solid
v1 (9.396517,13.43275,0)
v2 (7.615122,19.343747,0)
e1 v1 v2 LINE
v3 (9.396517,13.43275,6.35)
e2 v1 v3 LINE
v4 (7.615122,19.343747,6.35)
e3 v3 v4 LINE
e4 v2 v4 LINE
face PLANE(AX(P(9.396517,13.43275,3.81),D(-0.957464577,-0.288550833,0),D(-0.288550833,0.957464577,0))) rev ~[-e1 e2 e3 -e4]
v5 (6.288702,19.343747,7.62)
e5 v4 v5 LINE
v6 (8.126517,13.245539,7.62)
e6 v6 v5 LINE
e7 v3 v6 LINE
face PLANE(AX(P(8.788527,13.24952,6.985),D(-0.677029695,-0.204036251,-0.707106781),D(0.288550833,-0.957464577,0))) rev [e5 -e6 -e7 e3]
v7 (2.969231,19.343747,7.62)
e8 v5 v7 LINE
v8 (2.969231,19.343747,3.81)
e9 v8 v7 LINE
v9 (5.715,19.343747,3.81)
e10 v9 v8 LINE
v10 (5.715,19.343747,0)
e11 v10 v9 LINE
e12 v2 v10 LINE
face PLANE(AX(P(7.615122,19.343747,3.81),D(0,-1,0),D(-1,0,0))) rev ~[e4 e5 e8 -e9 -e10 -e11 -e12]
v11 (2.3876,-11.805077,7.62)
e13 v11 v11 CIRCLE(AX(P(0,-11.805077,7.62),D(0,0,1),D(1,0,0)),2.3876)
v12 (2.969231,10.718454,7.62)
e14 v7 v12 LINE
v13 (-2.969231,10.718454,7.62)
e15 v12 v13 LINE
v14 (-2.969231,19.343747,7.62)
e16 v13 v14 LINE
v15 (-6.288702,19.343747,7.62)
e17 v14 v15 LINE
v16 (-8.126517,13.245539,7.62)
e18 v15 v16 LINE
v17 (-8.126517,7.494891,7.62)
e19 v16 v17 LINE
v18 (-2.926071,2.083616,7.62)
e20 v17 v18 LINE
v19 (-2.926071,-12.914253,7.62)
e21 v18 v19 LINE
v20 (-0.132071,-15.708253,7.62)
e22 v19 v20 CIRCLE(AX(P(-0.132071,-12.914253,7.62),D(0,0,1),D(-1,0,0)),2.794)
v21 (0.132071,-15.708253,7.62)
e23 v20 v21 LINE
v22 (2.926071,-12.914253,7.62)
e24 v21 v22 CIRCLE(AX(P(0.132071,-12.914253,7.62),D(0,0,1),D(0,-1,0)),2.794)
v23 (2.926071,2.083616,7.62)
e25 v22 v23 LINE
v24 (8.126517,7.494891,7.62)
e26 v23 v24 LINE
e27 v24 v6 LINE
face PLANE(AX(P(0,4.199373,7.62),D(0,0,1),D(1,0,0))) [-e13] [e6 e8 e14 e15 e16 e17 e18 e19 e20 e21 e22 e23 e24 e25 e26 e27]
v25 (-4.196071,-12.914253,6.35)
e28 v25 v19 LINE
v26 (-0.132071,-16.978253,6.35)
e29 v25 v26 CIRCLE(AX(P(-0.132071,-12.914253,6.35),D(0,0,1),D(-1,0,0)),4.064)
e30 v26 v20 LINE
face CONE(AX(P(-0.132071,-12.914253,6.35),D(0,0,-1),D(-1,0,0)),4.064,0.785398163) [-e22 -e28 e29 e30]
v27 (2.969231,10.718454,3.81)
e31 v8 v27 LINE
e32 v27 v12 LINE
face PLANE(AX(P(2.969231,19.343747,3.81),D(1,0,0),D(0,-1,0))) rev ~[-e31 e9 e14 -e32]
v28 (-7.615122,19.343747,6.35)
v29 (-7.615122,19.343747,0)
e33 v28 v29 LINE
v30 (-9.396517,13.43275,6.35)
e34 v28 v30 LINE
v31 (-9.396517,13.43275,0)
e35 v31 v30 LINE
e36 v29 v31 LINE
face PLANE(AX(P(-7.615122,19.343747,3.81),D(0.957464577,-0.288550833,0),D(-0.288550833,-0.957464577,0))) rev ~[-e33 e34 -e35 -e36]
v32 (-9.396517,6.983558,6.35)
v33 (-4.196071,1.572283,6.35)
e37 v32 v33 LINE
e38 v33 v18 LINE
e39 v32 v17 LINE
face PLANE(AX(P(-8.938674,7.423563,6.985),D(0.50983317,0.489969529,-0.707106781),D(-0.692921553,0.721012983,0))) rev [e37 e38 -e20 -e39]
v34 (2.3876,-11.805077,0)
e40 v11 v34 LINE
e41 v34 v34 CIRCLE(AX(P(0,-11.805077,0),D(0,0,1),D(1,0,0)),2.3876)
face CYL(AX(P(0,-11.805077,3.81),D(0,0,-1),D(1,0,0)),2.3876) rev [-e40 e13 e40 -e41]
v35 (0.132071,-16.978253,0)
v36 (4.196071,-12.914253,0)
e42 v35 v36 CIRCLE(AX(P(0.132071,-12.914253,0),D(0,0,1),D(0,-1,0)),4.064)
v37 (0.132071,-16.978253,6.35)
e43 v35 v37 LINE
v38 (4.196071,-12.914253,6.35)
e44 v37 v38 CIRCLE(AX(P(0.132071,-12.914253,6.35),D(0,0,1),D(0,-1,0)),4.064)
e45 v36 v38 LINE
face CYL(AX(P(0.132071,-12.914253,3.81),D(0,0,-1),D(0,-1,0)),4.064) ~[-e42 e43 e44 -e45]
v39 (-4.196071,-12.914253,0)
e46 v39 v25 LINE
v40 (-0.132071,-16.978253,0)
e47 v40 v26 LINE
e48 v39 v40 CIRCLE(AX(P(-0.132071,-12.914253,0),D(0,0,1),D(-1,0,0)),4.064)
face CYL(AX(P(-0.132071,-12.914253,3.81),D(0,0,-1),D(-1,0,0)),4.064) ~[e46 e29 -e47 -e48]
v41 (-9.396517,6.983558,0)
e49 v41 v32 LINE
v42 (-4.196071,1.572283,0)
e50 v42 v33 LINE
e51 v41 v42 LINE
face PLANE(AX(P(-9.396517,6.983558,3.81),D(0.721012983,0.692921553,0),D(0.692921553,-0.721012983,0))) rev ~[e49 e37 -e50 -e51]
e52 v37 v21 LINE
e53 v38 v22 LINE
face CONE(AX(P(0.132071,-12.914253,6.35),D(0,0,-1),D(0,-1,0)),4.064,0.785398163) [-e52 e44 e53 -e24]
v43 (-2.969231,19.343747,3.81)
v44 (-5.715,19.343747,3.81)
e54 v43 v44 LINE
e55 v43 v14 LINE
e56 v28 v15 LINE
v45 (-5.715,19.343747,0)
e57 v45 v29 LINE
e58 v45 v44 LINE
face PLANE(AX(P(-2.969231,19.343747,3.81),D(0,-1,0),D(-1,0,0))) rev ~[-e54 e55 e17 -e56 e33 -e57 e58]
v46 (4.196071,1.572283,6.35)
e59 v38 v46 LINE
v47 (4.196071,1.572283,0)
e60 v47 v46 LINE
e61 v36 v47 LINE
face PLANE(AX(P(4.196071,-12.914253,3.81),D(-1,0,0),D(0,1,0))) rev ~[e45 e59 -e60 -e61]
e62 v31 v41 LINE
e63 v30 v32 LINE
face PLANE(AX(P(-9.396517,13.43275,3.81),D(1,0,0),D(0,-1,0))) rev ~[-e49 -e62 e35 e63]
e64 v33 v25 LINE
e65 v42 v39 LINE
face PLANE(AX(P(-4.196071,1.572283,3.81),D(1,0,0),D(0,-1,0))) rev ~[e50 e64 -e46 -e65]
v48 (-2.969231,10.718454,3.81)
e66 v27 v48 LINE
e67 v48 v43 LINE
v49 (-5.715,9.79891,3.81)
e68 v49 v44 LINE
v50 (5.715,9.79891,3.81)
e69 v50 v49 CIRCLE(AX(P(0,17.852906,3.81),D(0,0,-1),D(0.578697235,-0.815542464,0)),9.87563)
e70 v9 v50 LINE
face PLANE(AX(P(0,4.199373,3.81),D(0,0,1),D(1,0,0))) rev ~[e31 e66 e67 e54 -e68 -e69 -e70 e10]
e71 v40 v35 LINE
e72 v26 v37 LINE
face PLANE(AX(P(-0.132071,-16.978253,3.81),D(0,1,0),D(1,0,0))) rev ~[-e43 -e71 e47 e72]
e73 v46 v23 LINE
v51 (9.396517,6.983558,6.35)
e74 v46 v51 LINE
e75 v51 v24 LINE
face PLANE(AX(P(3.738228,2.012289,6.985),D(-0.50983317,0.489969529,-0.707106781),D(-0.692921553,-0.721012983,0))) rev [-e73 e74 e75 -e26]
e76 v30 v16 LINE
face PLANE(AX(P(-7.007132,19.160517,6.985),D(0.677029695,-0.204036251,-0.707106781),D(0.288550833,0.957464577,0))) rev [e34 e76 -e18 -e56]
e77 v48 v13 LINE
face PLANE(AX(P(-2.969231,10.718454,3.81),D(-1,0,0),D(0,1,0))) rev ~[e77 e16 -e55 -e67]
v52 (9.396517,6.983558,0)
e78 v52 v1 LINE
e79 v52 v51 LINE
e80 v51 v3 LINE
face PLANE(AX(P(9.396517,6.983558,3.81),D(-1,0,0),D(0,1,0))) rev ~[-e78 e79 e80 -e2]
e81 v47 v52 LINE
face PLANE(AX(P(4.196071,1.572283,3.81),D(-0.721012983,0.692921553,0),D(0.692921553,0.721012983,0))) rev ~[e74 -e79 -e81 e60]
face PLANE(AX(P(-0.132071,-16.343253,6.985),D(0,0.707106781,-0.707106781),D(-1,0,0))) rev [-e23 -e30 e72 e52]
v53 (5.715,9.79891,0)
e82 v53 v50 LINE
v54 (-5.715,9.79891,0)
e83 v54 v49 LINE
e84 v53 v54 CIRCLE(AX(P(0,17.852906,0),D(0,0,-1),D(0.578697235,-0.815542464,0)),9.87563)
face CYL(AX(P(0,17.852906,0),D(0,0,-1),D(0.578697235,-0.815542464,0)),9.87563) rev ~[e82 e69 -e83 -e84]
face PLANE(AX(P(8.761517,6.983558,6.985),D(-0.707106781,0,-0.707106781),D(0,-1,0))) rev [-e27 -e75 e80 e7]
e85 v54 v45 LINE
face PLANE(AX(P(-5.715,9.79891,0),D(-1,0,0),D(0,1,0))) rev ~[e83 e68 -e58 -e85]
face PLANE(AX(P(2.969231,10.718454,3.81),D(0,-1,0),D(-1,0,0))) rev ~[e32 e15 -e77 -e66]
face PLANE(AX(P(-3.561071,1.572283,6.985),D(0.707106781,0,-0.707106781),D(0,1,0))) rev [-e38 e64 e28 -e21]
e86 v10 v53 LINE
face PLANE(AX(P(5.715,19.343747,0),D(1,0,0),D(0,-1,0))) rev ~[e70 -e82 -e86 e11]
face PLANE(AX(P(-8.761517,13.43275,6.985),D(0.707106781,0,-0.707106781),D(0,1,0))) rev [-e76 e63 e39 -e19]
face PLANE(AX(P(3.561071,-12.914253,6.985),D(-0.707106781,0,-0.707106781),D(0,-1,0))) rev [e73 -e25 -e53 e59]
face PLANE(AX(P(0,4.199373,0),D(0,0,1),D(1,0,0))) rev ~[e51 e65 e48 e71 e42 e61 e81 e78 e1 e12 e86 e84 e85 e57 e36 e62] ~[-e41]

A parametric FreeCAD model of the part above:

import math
import FreeCAD as App
import Part
import Sketcher
from FreeCAD import Vector
Q = App.Units.Quantity


def edges_at(feature, points):
    """Names of the edges that pass closest to the given points."""
    edges = feature.Shape.Edges
    near = lambda p: min(range(len(edges)), key=lambda i: edges[i].distToShape(Part.Vertex(*p))[0])
    return sorted({f"Edge{near(p) + 1}" for p in points})

doc = App.newDocument("Part")
body = doc.addObject("PartDesign::Body", "Body")

# Sketch on XY plane
sketch1 = body.newObject("Sketcher::SketchObject", "Sketch")
sketch1.AttachmentSupport = (doc.getObject("XY_Plane"), [""])
sketch1.MapMode = "FlatFace"
sketch1.addGeometry([
    Part.ArcOfCircle(Part.Circle(Vector(0, 17.85, 0), Vector(0, 0, 1), 9.88), math.radians(-125), math.radians(-55)),  # 0
    Part.LineSegment(Vector(-5.71, 9.8, 0), Vector(-5.71, 19.34, 0)),  # 1
    Part.LineSegment(Vector(-5.71, 19.34, 0), Vector(-7.62, 19.34, 0)),  # 2
    Part.LineSegment(Vector(-7.62, 19.34, 0), Vector(-9.4, 13.43, 0)),  # 3
    Part.LineSegment(Vector(-9.4, 13.43, 0), Vector(-9.4, 6.98, 0)),  # 4
    Part.LineSegment(Vector(-9.4, 6.98, 0), Vector(-4.2, 1.57, 0)),  # 5
    Part.LineSegment(Vector(-4.2, 1.57, 0), Vector(-4.2, -12.91, 0)),  # 6
    Part.ArcOfCircle(Part.Circle(Vector(-0.13, -12.91, 0), Vector(0, 0, 1), 4.06), math.radians(180), math.radians(270)),  # 7
    Part.LineSegment(Vector(-0.13, -16.98, 0), Vector(0.13, -16.98, 0)),  # 8
    Part.ArcOfCircle(Part.Circle(Vector(0.13, -12.91, 0), Vector(0, 0, 1), 4.06), math.radians(-90), math.radians(0)),  # 9
    Part.LineSegment(Vector(4.2, -12.91, 0), Vector(4.2, 1.57, 0)),  # 10
    Part.LineSegment(Vector(4.2, 1.57, 0), Vector(9.4, 6.98, 0)),  # 11
    Part.LineSegment(Vector(9.4, 6.98, 0), Vector(9.4, 13.43, 0)),  # 12
    Part.LineSegment(Vector(9.4, 13.43, 0), Vector(7.62, 19.34, 0)),  # 13
    Part.LineSegment(Vector(7.62, 19.34, 0), Vector(5.71, 19.34, 0)),  # 14
    Part.LineSegment(Vector(5.71, 19.34, 0), Vector(5.71, 9.8, 0)),  # 15
    Part.Circle(Vector(0, -11.81, 0), Vector(0, 0, 1), 2.39),  # 16
], False)
sketch1.addConstraint([
    Sketcher.Constraint("Coincident", 0, 1, 1, 1),
    Sketcher.Constraint("Coincident", 1, 2, 2, 1),
    Sketcher.Constraint("Coincident", 2, 2, 3, 1),
    Sketcher.Constraint("Coincident", 3, 2, 4, 1),
    Sketcher.Constraint("Coincident", 4, 2, 5, 1),
    Sketcher.Constraint("Coincident", 5, 2, 6, 1),
    Sketcher.Constraint("Tangent", 6, 2, 7, 1),
    Sketcher.Constraint("Tangent", 7, 2, 8, 1),
    Sketcher.Constraint("Tangent", 8, 2, 9, 1),
    Sketcher.Constraint("Tangent", 9, 2, 10, 1),
    Sketcher.Constraint("Coincident", 10, 2, 11, 1),
    Sketcher.Constraint("Coincident", 11, 2, 12, 1),
    Sketcher.Constraint("Coincident", 12, 2, 13, 1),
    Sketcher.Constraint("Coincident", 13, 2, 14, 1),
    Sketcher.Constraint("Coincident", 14, 2, 15, 1),
    Sketcher.Constraint("Coincident", 15, 2, 0, 2),
    Sketcher.Constraint("Vertical", 1),
    Sketcher.Constraint("Horizontal", 2),
    Sketcher.Constraint("Vertical", 4),
    Sketcher.Constraint("Vertical", 6),
    Sketcher.Constraint("Horizontal", 8),
    Sketcher.Constraint("Vertical", 10),
    Sketcher.Constraint("Vertical", 12),
    Sketcher.Constraint("Horizontal", 14),
    Sketcher.Constraint("Vertical", 15),
    Sketcher.Constraint("Equal", 7, 9),
    Sketcher.Constraint("Symmetric", 5, 2, 10, 2, -2),
    Sketcher.Constraint("Symmetric", 4, 2, 11, 2, -2),
    Sketcher.Constraint("Symmetric", 2, 2, 13, 2, -2),
    Sketcher.Constraint("Symmetric", 0, 1, 15, 2, -2),
    Sketcher.Constraint("PointOnObject", 16, 3, -2),
    Sketcher.Constraint("Horizontal", 3, 2, 12, 2),
    Sketcher.Constraint("Radius", 7, Q("0.16 in")),
    Sketcher.Constraint("Diameter", 16, Q("0.188 in")),
    Sketcher.Constraint("DistanceY", 7, 3, 1, 2, Q("1.27 in")),
    Sketcher.Constraint("DistanceX", 1, 2, 14, 2, Q("0.45 in")),
    Sketcher.Constraint("Radius", 0, 9.87563),
    Sketcher.Constraint("Distance", 5, 7.5051),
    Sketcher.Constraint("DistanceX", 2, 2, 2, 1, 1.900122),
    Sketcher.Constraint("DistanceY", 4, 2, 4, 1, 6.449192),
    Sketcher.Constraint("DistanceX", 8, 1, 8, 2, 0.264143),
    Sketcher.Constraint("DistanceY", 1, 1, 1, 2, 9.544836),
    Sketcher.Constraint("DistanceY", 6, 2, 6, 1, 14.486537),
    Sketcher.Constraint("DistanceY", -1, 1, 0, 1, 9.79891),
    Sketcher.Constraint("DistanceY", -1, 1, 3, 2, 13.43275),
    Sketcher.Constraint("DistanceY", 16, 3, 5, 2, 13.377361),
])
pad1 = body.newObject("PartDesign::Pad", "Pad")
pad1.Profile = sketch1
pad1.Length = Q("0.15 in")

# Sketch on XY plane
sketch2 = body.newObject("Sketcher::SketchObject", "Sketch001")
sketch2.AttachmentSupport = (doc.getObject("XY_Plane"), [""])
sketch2.MapMode = "FlatFace"
sketch2.AttachmentOffset = App.Placement(Vector(0, 0, 0.15 * 25.4), App.Rotation())
sketch2.addGeometry([
    Part.LineSegment(Vector(-7.62, 19.34, 0), Vector(-9.4, 13.43, 0)),  # 0
    Part.LineSegment(Vector(-9.4, 13.43, 0), Vector(-9.4, 6.98, 0)),  # 1
    Part.LineSegment(Vector(-9.4, 6.98, 0), Vector(-4.2, 1.57, 0)),  # 2
    Part.LineSegment(Vector(-4.2, 1.57, 0), Vector(-4.2, -12.91, 0)),  # 3
    Part.ArcOfCircle(Part.Circle(Vector(-0.13, -12.91, 0), Vector(0, 0, 1), 4.06), math.radians(180), math.radians(270)),  # 4
    Part.LineSegment(Vector(-0.13, -16.98, 0), Vector(0.13, -16.98, 0)),  # 5
    Part.ArcOfCircle(Part.Circle(Vector(0.13, -12.91, 0), Vector(0, 0, 1), 4.06), math.radians(-90), math.radians(0)),  # 6
    Part.LineSegment(Vector(4.2, -12.91, 0), Vector(4.2, 1.57, 0)),  # 7
    Part.LineSegment(Vector(4.2, 1.57, 0), Vector(9.4, 6.98, 0)),  # 8
    Part.LineSegment(Vector(9.4, 6.98, 0), Vector(9.4, 13.43, 0)),  # 9
    Part.LineSegment(Vector(9.4, 13.43, 0), Vector(7.62, 19.34, 0)),  # 10
    Part.LineSegment(Vector(7.62, 19.34, 0), Vector(2.97, 19.34, 0)),  # 11
    Part.LineSegment(Vector(2.97, 19.34, 0), Vector(2.97, 10.72, 0)),  # 12
    Part.LineSegment(Vector(2.97, 10.72, 0), Vector(-2.97, 10.72, 0)),  # 13
    Part.LineSegment(Vector(-2.97, 10.72, 0), Vector(-2.97, 19.34, 0)),  # 14
    Part.LineSegment(Vector(-2.97, 19.34, 0), Vector(-7.62, 19.34, 0)),  # 15
    Part.Circle(Vector(0, -11.81, 0), Vector(0, 0, 1), 2.39),  # 16
], False)
sketch2.addConstraint([
    Sketcher.Constraint("Coincident", 0, 2, 1, 1),
    Sketcher.Constraint("Coincident", 1, 2, 2, 1),
    Sketcher.Constraint("Coincident", 2, 2, 3, 1),
    Sketcher.Constraint("Tangent", 3, 2, 4, 1),
    Sketcher.Constraint("Tangent", 4, 2, 5, 1),
    Sketcher.Constraint("Tangent", 5, 2, 6, 1),
    Sketcher.Constraint("Tangent", 6, 2, 7, 1),
    Sketcher.Constraint("Coincident", 7, 2, 8, 1),
    Sketcher.Constraint("Coincident", 8, 2, 9, 1),
    Sketcher.Constraint("Coincident", 9, 2, 10, 1),
    Sketcher.Constraint("Coincident", 10, 2, 11, 1),
    Sketcher.Constraint("Coincident", 11, 2, 12, 1),
    Sketcher.Constraint("Coincident", 12, 2, 13, 1),
    Sketcher.Constraint("Coincident", 13, 2, 14, 1),
    Sketcher.Constraint("Coincident", 14, 2, 15, 1),
    Sketcher.Constraint("Coincident", 15, 2, 0, 1),
    Sketcher.Constraint("Vertical", 1),
    Sketcher.Constraint("Vertical", 3),
    Sketcher.Constraint("Horizontal", 5),
    Sketcher.Constraint("Vertical", 7),
    Sketcher.Constraint("Vertical", 9),
    Sketcher.Constraint("Horizontal", 11),
    Sketcher.Constraint("Vertical", 12),
    Sketcher.Constraint("Horizontal", 13),
    Sketcher.Constraint("Vertical", 14),
    Sketcher.Constraint("Horizontal", 15),
    Sketcher.Constraint("Equal", 4, 6),
    Sketcher.Constraint("Symmetric", 2, 2, 7, 2, -2),
    Sketcher.Constraint("Symmetric", 1, 2, 8, 2, -2),
    Sketcher.Constraint("Symmetric", 11, 2, 14, 2, -2),
    Sketcher.Constraint("PointOnObject", 16, 3, -2),
    Sketcher.Constraint("Horizontal", 0, 2, 9, 2),
    Sketcher.Constraint("Equal", 11, 15),
    Sketcher.Constraint("Radius", 4, Q("0.16 in")),
    Sketcher.Constraint("Diameter", 16, Q("0.188 in")),
    Sketcher.Constraint("Distance", 2, 7.5051),
    Sketcher.Constraint("DistanceX", 11, 2, 11, 1, 4.645891),
    Sketcher.Constraint("DistanceX", 13, 2, 13, 1, 5.938462),
    Sketcher.Constraint("DistanceY", 1, 2, 1, 1, 6.449192),
    Sketcher.Constraint("DistanceX", 5, 1, 5, 2, 0.264143),
    Sketcher.Constraint("DistanceY", 3, 2, 3, 1, 14.486537),
    Sketcher.Constraint("DistanceY", 12, 2, 12, 1, 8.625293),
    Sketcher.Constraint("DistanceY", -1, 1, 0, 2, 13.43275),
    Sketcher.Constraint("DistanceX", 0, 2, 6, 3, 9.528589),
    Sketcher.Constraint("DistanceY", 16, 3, 2, 2, 13.377361),
    Sketcher.Constraint("DistanceY", 8, 2, 10, 2, 12.360189),
])
pad2 = body.newObject("PartDesign::Pad", "Pad001")
pad2.Profile = sketch2
pad2.Length = Q("0.15 in")
doc.recompute()

chamfer = body.newObject("PartDesign::Chamfer", "Chamfer")
chamfer.Base = (pad2, edges_at(pad2, [
    (-8.506, 16.388, 7.62),
    (-9.397, 10.208, 7.62),
    (-6.796, 4.278, 7.62),
    (-4.196, -5.671, 7.62),
    (6.796, 4.278, 7.62),
    (9.397, 10.208, 7.62),
    (8.506, 16.388, 7.62),
]))
chamfer.Size = Q("0.05 in")

doc.recompute()
